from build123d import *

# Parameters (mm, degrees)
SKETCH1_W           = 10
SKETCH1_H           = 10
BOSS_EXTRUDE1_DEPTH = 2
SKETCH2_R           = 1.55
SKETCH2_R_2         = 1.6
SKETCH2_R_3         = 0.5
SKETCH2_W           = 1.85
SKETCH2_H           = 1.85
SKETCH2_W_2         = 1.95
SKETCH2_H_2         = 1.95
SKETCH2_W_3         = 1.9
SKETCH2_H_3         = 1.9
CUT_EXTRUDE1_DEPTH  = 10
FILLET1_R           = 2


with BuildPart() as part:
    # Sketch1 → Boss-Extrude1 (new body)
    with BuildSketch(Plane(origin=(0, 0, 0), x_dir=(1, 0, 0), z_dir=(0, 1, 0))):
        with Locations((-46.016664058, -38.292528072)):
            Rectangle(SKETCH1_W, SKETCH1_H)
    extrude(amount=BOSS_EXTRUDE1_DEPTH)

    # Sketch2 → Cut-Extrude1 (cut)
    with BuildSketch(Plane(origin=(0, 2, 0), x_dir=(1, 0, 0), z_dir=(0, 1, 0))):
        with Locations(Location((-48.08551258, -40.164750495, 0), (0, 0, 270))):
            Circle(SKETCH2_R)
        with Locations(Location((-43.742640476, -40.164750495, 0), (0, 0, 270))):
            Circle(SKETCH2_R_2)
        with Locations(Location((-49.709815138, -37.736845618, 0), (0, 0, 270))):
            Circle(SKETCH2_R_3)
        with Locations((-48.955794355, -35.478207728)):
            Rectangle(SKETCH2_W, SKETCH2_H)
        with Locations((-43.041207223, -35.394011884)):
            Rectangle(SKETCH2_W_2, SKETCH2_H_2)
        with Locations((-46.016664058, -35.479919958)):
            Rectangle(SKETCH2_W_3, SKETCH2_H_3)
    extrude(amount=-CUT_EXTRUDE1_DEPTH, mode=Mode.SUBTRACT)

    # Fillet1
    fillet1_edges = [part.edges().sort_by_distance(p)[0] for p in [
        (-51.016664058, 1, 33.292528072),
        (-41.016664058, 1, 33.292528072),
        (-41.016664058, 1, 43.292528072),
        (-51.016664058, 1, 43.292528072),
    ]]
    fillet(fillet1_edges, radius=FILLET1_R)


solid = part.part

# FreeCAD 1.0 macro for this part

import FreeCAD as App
import Part
import Sketcher
from FreeCAD import Vector
Q = App.Units.Quantity


def edges_at(feature, points):
    """Names of the edges that pass closest to the given points."""
    edges = feature.Shape.Edges
    near = lambda p: min(range(len(edges)), key=lambda i: edges[i].distToShape(Part.Vertex(*p))[0])
    return sorted({f"Edge{near(p) + 1}" for p in points})

doc = App.newDocument("Part")
body = doc.addObject("PartDesign::Body", "Body")

sketch1 = body.newObject("Sketcher::SketchObject", "Sketch")
sketch1.AttachmentSupport = (doc.getObject("XZ_Plane"), [""])
sketch1.MapMode = "FlatFace"
sketch1.addGeometry(Part.LineSegment(Vector(-51.016664, 33.292528, 0), Vector(-51.016664, 43.292528, 0)), False)
sketch1.addGeometry(Part.LineSegment(Vector(-51.016664, 43.292528, 0), Vector(-41.016664, 43.292528, 0)), False)
sketch1.addGeometry(Part.LineSegment(Vector(-41.016664, 43.292528, 0), Vector(-41.016664, 33.292528, 0)), False)
sketch1.addGeometry(Part.LineSegment(Vector(-41.016664, 33.292528, 0), Vector(-51.016664, 33.292528, 0)), False)
sketch1.addConstraint(Sketcher.Constraint("Coincident", 0, 2, 1, 1))
sketch1.addConstraint(Sketcher.Constraint("Coincident", 1, 2, 2, 1))
sketch1.addConstraint(Sketcher.Constraint("Coincident", 2, 2, 3, 1))
sketch1.addConstraint(Sketcher.Constraint("Coincident", 3, 2, 0, 1))
sketch1.addConstraint(Sketcher.Constraint("Vertical", 0))
sketch1.addConstraint(Sketcher.Constraint("Horizontal", 1))
sketch1.addConstraint(Sketcher.Constraint("Vertical", 2))
sketch1.addConstraint(Sketcher.Constraint("Horizontal", 3))
sketch1.addConstraint(Sketcher.Constraint("Equal", 3, 0))
sketch1.addConstraint(Sketcher.Constraint("DistanceX", 1, 1, 1, 2, Q("10 mm")))
sketch1.addConstraint(Sketcher.Constraint("DistanceY", -1, 1, 0, 2, Q("43.292528 mm")))
sketch1.addConstraint(Sketcher.Constraint("DistanceX", 0, 2, -1, 1, Q("51.016664 mm")))
pad1 = body.newObject("PartDesign::Pad", "Pad")
pad1.Profile = sketch1
pad1.Length = 2
pad1.Reversed = True

sketch2 = body.newObject("Sketcher::SketchObject", "Sketch001")
sketch2.AttachmentSupport = (doc.getObject("XZ_Plane"), [""])
sketch2.MapMode = "FlatFace"
sketch2.AttachmentOffset = App.Placement(Vector(0, 0, -2), App.Rotation())
sketch2.addGeometry(Part.Circle(Vector(-48.085513, 40.16475, 0), Vector(0, 0, 1), 1.55), False)
sketch2.addGeometry(Part.Circle(Vector(-43.74264, 40.16475, 0), Vector(0, 0, 1), 1.6), False)
sketch2.addGeometry(Part.Circle(Vector(-49.709815, 37.736846, 0), Vector(0, 0, 1), 0.5), False)
sketch2.addGeometry(Part.LineSegment(Vector(-49.880794, 34.553208, 0), Vector(-49.880794, 36.403208, 0)), False)
sketch2.addGeometry(Part.LineSegment(Vector(-49.880794, 36.403208, 0), Vector(-48.030794, 36.403208, 0)), False)
sketch2.addGeometry(Part.LineSegment(Vector(-48.030794, 36.403208, 0), Vector(-48.030794, 34.553208, 0)), False)
sketch2.addGeometry(Part.LineSegment(Vector(-48.030794, 34.553208, 0), Vector(-49.880794, 34.553208, 0)), False)
sketch2.addGeometry(Part.LineSegment(Vector(-44.016207, 34.419012, 0), Vector(-44.016207, 36.369012, 0)), False)
sketch2.addGeometry(Part.LineSegment(Vector(-44.016207, 36.369012, 0), Vector(-42.066207, 36.369012, 0)), False)
sketch2.addGeometry(Part.LineSegment(Vector(-42.066207, 36.369012, 0), Vector(-42.066207, 34.419012, 0)), False)
sketch2.addGeometry(Part.LineSegment(Vector(-42.066207, 34.419012, 0), Vector(-44.016207, 34.419012, 0)), False)
sketch2.addGeometry(Part.LineSegment(Vector(-46.966664, 34.52992, 0), Vector(-46.966664, 36.42992, 0)), False)
sketch2.addGeometry(Part.LineSegment(Vector(-46.966664, 36.42992, 0), Vector(-45.066664, 36.42992, 0)), False)
sketch2.addGeometry(Part.LineSegment(Vector(-45.066664, 36.42992, 0), Vector(-45.066664, 34.52992, 0)), False)
sketch2.addGeometry(Part.LineSegment(Vector(-45.066664, 34.52992, 0), Vector(-46.966664, 34.52992, 0)), False)
sketch2.addConstraint(Sketcher.Constraint("Coincident", 3, 2, 4, 1))
sketch2.addConstraint(Sketcher.Constraint("Coincident", 4, 2, 5, 1))
sketch2.addConstraint(Sketcher.Constraint("Coincident", 5, 2, 6, 1))
sketch2.addConstraint(Sketcher.Constraint("Coincident", 6, 2, 3, 1))
sketch2.addConstraint(Sketcher.Constraint("Coincident", 7, 2, 8, 1))
sketch2.addConstraint(Sketcher.Constraint("Coincident", 8, 2, 9, 1))
sketch2.addConstraint(Sketcher.Constraint("Coincident", 9, 2, 10, 1))
sketch2.addConstraint(Sketcher.Constraint("Coincident", 10, 2, 7, 1))
sketch2.addConstraint(Sketcher.Constraint("Coincident", 11, 2, 12, 1))
sketch2.addConstraint(Sketcher.Constraint("Coincident", 12, 2, 13, 1))
sketch2.addConstraint(Sketcher.Constraint("Coincident", 13, 2, 14, 1))
sketch2.addConstraint(Sketcher.Constraint("Coincident", 14, 2, 11, 1))
sketch2.addConstraint(Sketcher.Constraint("Vertical", 3))
sketch2.addConstraint(Sketcher.Constraint("Horizontal", 4))
sketch2.addConstraint(Sketcher.Constraint("Vertical", 5))
sketch2.addConstraint(Sketcher.Constraint("Horizontal", 6))
sketch2.addConstraint(Sketcher.Constraint("Vertical", 7))
sketch2.addConstraint(Sketcher.Constraint("Horizontal", 8))
sketch2.addConstraint(Sketcher.Constraint("Vertical", 9))
sketch2.addConstraint(Sketcher.Constraint("Horizontal", 10))
sketch2.addConstraint(Sketcher.Constraint("Vertical", 11))
sketch2.addConstraint(Sketcher.Constraint("Horizontal", 12))
sketch2.addConstraint(Sketcher.Constraint("Vertical", 13))
sketch2.addConstraint(Sketcher.Constraint("Horizontal", 14))
sketch2.addConstraint(Sketcher.Constraint("Horizontal", 0, 3, 1, 3))
sketch2.addConstraint(Sketcher.Constraint("Equal", 6, 3))
sketch2.addConstraint(Sketcher.Constraint("Equal", 10, 7))
sketch2.addConstraint(Sketcher.Constraint("Equal", 14, 11))
sketch2.addConstraint(Sketcher.Constraint("Diameter", 2, Q("1 mm")))
sketch2.addConstraint(Sketcher.Constraint("Diameter", 0, Q("3.1 mm")))
sketch2.addConstraint(Sketcher.Constraint("Diameter", 1, Q("3.2 mm")))
sketch2.addConstraint(Sketcher.Constraint("DistanceX", 12, 1, 12, 2, Q("1.9 mm")))
sketch2.addConstraint(Sketcher.Constraint("DistanceX", 4, 1, 4, 2, Q("1.85 mm")))
sketch2.addConstraint(Sketcher.Constraint("DistanceX", 8, 1, 8, 2, Q("1.95 mm")))
sketch2.addConstraint(Sketcher.Constraint("DistanceY", -1, 1, 0, 3, Q("40.16475 mm")))
sketch2.addConstraint(Sketcher.Constraint("DistanceX", 1, 3, -1, 1, Q("43.74264 mm")))
sketch2.addConstraint(Sketcher.Constraint("DistanceY", -1, 1, 7, 2, Q("36.369012 mm")))
sketch2.addConstraint(Sketcher.Constraint("DistanceY", -1, 1, 11, 2, Q("36.42992 mm")))
sketch2.addConstraint(Sketcher.Constraint("DistanceX", 3, 2, 2, 3, Q("0.170979 mm")))
sketch2.addConstraint(Sketcher.Constraint("DistanceX", 3, 2, 0, 3, Q("1.795282 mm")))
sketch2.addConstraint(Sketcher.Constraint("DistanceX", 4, 2, 11, 2, Q("1.06413 mm")))
sketch2.addConstraint(Sketcher.Constraint("DistanceX", 0, 3, -1, 1, Q("48.085513 mm")))
sketch2.addConstraint(Sketcher.Constraint("DistanceY", -1, 1, 2, 3, Q("37.736846 mm")))
sketch2.addConstraint(Sketcher.Constraint("DistanceY", -1, 1, 3, 2, Q("36.403208 mm")))
sketch2.addConstraint(Sketcher.Constraint("DistanceX", 7, 2, -1, 1, Q("44.016207 mm")))
pocket1 = body.newObject("PartDesign::Pocket", "Pocket")
pocket1.Profile = sketch2
pocket1.Length = 10
pocket1.Reversed = True
doc.recompute()

fillet = body.newObject("PartDesign::Fillet", "Fillet")
fillet.Base = (pocket1, edges_at(pocket1, [
    (-51.017, 1, 33.293),
    (-41.017, 1, 33.293),
    (-41.017, 1, 43.293),
    (-51.017, 1, 43.293),
]))
fillet.Radius = 2

doc.recompute()
